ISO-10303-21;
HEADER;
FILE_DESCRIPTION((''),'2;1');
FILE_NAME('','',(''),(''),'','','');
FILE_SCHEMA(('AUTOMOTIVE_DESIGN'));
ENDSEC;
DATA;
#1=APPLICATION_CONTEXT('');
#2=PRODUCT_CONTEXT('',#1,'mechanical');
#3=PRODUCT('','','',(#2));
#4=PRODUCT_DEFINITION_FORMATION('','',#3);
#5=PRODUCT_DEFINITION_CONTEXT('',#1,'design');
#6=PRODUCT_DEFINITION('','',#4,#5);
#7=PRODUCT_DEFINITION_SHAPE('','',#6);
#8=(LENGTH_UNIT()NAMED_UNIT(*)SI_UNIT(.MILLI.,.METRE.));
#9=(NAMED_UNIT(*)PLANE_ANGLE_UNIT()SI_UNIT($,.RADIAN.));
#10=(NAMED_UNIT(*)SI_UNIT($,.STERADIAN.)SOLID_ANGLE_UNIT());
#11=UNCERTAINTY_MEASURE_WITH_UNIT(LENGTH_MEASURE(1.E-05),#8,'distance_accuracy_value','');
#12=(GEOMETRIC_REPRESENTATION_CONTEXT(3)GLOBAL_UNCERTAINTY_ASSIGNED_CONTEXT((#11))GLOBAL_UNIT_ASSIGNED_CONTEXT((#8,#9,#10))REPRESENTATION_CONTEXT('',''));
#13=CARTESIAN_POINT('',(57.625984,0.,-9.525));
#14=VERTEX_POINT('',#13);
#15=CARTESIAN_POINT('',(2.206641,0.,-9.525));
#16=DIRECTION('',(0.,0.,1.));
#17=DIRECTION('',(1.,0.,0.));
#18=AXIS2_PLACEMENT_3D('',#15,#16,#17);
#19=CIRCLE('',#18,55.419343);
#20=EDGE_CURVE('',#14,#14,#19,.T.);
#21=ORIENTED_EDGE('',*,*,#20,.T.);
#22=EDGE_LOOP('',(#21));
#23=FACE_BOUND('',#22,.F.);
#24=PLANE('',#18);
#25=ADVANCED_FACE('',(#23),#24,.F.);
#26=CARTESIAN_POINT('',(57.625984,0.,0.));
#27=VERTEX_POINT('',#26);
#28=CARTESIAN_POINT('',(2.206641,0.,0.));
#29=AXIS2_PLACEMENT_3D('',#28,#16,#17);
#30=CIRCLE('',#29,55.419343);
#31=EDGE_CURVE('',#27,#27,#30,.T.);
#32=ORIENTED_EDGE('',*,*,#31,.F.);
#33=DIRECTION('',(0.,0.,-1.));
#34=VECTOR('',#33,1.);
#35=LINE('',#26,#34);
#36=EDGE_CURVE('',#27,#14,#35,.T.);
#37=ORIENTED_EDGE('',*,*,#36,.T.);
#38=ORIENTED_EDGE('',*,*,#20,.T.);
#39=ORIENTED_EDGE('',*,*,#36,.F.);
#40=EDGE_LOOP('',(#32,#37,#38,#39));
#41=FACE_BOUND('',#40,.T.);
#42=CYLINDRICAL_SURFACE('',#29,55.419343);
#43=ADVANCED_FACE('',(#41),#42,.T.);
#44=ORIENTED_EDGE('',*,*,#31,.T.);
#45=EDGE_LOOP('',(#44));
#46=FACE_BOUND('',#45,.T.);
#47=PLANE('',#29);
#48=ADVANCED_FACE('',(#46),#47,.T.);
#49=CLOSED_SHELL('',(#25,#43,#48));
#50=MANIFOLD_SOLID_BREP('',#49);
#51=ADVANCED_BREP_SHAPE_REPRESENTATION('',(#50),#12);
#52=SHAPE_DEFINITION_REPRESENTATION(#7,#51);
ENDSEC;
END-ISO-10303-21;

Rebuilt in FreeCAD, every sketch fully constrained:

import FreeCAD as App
import Part
import Sketcher

V = App.Vector

doc = App.newDocument("Part")
params = doc.addObject("Spreadsheet::Sheet", "Params")
for row, (alias, value) in enumerate([
    ("pad1_length", "0.375 in"),
], start=1):
    params.set(f"A{row}", alias)
    params.set(f"B{row}", "=" + value)
    params.setAlias(f"B{row}", alias)

body = doc.addObject("PartDesign::Body", "Body")

# Sketch on XY plane
sketch1 = body.newObject("Sketcher::SketchObject", "Sketch")
sketch1.AttachmentSupport = (doc.getObject("XY_Plane"), [""])
sketch1.MapMode = "FlatFace"
sketch1.addGeometry(Part.Circle(V(2, 0, 0), V(0, 0, 1), 55), False)
sketch1.addConstraint([
    Sketcher.Constraint("PointOnObject", 0, 3, -1),
    Sketcher.Constraint("Diameter", 0, 110.838686),
    Sketcher.Constraint("DistanceX", -1, 1, 0, 3, 2.206641),
])
pad1 = body.newObject("PartDesign::Pad", "Pad")
pad1.Profile = sketch1
pad1.setExpression("Length", "Params.pad1_length")
pad1.Reversed = True

doc.recompute()
